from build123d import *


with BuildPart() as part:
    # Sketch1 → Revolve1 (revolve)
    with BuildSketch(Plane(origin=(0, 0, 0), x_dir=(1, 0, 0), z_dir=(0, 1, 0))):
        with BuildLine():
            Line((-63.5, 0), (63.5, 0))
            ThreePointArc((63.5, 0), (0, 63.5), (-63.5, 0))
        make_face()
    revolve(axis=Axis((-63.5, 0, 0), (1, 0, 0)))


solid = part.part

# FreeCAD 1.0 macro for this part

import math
import FreeCAD as App
import Part
import Sketcher
from FreeCAD import Vector
Q = App.Units.Quantity

doc = App.newDocument("Part")
body = doc.addObject("PartDesign::Body", "Body")

sketch1 = body.newObject("Sketcher::SketchObject", "Sketch")
sketch1.AttachmentSupport = (doc.getObject("XZ_Plane"), [""])
sketch1.MapMode = "FlatFace"
sketch1.addGeometry([
    Part.LineSegment(Vector(-63.5, 0, 0), Vector(63.5, 0, 0)),
    Part.ArcOfCircle(Part.Circle(Vector(0, 0, 0), Vector(0, 0, 1), 63.5), math.radians(180), math.radians(360)),
], False)
sketch1.addConstraint([
    Sketcher.Constraint("Coincident", 0, 1, 1, 1),
    Sketcher.Constraint("Coincident", 1, 2, 0, 2),
    Sketcher.Constraint("Horizontal", 0),
    Sketcher.Constraint("Coincident", 1, 3, -1, 1),
    Sketcher.Constraint("PointOnObject", 0, 1, -1),
    Sketcher.Constraint("Radius", 1, Q("2.5 in")),
])
revolution = body.newObject("PartDesign::Revolution", "Revolution")
revolution.Profile = sketch1
revolution.ReferenceAxis = (sketch1, ["H_Axis"])
revolution.Angle = 360

doc.recompute()
